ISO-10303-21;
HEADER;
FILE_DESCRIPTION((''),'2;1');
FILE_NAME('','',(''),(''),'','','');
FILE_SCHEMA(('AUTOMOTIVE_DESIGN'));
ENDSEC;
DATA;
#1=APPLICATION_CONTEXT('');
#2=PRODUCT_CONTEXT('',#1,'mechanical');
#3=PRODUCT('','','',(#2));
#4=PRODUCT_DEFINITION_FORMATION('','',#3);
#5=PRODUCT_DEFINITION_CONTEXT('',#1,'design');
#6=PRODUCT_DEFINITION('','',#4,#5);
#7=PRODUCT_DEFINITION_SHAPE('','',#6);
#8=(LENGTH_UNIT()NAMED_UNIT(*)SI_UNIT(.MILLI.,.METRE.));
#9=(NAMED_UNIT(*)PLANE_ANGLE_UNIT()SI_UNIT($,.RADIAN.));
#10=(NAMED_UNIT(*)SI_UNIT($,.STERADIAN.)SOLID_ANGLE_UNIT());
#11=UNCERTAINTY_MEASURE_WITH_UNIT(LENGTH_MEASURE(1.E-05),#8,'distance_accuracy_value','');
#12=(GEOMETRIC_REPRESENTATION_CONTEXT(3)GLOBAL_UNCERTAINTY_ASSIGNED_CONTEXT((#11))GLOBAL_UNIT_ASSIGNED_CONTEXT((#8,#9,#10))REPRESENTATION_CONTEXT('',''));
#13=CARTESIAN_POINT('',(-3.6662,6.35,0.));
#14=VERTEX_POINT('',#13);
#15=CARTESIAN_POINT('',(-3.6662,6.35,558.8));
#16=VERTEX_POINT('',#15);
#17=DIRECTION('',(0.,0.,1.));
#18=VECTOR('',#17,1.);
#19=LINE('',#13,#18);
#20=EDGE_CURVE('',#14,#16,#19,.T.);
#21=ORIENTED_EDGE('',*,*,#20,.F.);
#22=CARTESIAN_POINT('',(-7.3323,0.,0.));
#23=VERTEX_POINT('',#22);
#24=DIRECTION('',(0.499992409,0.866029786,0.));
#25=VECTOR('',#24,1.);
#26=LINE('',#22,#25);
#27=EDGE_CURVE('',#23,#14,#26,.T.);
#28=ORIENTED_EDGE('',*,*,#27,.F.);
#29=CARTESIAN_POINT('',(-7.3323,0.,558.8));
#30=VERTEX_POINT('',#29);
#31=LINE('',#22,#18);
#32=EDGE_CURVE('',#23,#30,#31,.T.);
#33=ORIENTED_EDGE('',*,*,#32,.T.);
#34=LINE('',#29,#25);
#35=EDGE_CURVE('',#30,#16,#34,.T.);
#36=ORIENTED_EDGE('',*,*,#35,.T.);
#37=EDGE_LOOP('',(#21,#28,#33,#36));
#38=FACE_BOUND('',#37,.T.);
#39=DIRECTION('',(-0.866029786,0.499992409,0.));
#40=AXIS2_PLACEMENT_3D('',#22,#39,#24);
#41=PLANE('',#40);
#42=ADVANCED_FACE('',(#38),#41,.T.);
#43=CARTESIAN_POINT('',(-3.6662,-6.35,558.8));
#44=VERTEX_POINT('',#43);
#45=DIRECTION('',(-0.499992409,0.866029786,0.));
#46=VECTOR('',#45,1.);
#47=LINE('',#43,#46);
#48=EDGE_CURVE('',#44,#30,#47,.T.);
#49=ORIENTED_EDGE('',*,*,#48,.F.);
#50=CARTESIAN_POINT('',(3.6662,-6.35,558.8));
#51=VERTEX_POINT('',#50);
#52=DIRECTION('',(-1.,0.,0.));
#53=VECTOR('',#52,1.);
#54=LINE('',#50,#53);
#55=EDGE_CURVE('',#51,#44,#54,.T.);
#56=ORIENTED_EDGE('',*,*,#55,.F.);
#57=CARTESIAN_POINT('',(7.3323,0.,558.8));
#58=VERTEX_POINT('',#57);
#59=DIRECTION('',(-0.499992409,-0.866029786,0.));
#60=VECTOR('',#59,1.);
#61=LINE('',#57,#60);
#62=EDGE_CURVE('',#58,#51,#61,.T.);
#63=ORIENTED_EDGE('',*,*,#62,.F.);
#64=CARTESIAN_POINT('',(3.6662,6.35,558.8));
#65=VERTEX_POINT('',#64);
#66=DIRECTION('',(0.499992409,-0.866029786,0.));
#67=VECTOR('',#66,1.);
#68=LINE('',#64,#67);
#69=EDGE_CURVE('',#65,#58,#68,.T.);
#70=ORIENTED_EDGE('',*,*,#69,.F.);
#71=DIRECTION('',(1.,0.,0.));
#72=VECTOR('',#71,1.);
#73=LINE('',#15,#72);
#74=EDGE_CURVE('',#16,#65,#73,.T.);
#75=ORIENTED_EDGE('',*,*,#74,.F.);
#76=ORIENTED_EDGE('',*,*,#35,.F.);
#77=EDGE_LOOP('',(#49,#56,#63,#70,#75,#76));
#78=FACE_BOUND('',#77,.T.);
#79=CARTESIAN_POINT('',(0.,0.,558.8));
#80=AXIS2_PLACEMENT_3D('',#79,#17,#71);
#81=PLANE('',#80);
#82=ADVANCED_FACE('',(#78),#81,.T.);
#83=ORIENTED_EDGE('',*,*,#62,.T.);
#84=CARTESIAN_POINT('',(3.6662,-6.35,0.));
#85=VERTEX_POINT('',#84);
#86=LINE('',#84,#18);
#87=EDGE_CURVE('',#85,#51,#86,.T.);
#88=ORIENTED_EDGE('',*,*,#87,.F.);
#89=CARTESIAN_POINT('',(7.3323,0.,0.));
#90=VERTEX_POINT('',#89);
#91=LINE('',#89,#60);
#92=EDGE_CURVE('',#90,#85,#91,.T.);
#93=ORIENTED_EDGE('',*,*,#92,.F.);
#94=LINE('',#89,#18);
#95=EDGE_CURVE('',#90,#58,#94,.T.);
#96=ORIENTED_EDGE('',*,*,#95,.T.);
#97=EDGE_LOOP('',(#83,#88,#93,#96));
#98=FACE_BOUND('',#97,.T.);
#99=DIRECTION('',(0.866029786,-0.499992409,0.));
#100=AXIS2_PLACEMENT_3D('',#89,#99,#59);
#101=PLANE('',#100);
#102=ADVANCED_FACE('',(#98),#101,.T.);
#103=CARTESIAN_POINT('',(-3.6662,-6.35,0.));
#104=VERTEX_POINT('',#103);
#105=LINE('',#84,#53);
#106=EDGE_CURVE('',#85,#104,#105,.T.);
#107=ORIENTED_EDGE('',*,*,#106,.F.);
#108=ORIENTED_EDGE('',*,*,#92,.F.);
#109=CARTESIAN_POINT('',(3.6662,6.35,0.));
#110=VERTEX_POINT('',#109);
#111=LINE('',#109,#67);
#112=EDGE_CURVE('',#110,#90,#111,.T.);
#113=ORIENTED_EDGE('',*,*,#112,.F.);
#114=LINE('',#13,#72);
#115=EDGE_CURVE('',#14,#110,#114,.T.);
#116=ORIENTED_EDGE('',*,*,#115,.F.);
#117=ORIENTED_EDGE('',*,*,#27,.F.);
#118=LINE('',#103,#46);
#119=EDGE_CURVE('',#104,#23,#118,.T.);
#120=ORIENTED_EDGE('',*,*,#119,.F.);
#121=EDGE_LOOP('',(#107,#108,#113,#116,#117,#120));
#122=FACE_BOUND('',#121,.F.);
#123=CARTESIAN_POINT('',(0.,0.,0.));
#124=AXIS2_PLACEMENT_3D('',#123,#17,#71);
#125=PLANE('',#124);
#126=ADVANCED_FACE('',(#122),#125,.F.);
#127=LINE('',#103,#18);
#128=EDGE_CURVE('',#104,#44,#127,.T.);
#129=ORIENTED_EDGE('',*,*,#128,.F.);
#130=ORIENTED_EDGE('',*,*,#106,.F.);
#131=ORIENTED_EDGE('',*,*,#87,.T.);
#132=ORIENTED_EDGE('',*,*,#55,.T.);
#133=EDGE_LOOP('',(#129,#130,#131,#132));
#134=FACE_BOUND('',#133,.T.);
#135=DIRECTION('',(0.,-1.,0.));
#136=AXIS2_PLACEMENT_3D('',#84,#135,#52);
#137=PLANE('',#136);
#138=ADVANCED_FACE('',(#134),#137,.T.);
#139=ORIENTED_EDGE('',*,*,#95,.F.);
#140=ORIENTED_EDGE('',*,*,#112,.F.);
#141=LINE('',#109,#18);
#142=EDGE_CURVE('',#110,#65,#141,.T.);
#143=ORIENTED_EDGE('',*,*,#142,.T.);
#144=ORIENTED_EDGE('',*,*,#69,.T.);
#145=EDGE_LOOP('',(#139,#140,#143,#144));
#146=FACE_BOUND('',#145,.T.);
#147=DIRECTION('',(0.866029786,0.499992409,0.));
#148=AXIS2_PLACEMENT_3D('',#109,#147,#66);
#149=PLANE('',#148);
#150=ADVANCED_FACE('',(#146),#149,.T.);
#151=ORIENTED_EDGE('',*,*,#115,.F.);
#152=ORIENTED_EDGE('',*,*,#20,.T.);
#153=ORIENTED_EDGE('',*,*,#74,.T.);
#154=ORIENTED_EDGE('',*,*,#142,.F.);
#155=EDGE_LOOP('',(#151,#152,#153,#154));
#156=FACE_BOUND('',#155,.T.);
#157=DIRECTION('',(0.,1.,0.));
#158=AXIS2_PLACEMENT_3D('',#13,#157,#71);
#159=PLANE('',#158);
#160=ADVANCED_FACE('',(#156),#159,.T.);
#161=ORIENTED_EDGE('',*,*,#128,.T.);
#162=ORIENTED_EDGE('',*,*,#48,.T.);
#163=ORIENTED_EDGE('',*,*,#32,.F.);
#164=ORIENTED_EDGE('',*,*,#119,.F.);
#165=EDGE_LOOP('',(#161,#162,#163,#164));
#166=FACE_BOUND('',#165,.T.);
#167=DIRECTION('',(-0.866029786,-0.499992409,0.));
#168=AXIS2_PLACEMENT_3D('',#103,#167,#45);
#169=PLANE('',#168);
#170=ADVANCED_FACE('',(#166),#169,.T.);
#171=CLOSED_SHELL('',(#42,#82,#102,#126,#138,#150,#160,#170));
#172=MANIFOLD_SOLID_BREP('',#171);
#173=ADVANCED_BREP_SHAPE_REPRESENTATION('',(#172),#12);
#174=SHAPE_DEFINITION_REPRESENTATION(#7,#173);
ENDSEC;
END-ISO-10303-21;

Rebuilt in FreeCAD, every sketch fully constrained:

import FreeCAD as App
import Part
import Sketcher
from FreeCAD import Vector
Q = App.Units.Quantity

doc = App.newDocument("Part")
body = doc.addObject("PartDesign::Body", "Body")

# Sketch on XY plane
sketch1 = body.newObject("Sketcher::SketchObject", "Sketch")
sketch1.AttachmentSupport = (doc.getObject("XY_Plane"), [""])
sketch1.MapMode = "FlatFace"
sketch1.addGeometry([
    Part.LineSegment(Vector(7.3323, 0, 0), Vector(3.6662, 6.35, 0)),  # 0
    Part.LineSegment(Vector(3.6662, 6.35, 0), Vector(-3.6662, 6.35, 0)),  # 1
    Part.LineSegment(Vector(-3.6662, 6.35, 0), Vector(-7.3323, 0, 0)),  # 2
    Part.LineSegment(Vector(-7.3323, 0, 0), Vector(-3.6662, -6.35, 0)),  # 3
    Part.LineSegment(Vector(-3.6662, -6.35, 0), Vector(3.6662, -6.35, 0)),  # 4
    Part.LineSegment(Vector(3.6662, -6.35, 0), Vector(7.3323, 0, 0)),  # 5
], False)
sketch1.addConstraint([
    Sketcher.Constraint("Coincident", 0, 2, 1, 1),
    Sketcher.Constraint("Coincident", 1, 2, 2, 1),
    Sketcher.Constraint("Coincident", 2, 2, 3, 1),
    Sketcher.Constraint("Coincident", 3, 2, 4, 1),
    Sketcher.Constraint("Coincident", 4, 2, 5, 1),
    Sketcher.Constraint("Coincident", 5, 2, 0, 1),
    Sketcher.Constraint("Horizontal", 1),
    Sketcher.Constraint("Horizontal", 4),
    Sketcher.Constraint("Symmetric", 0, 2, 3, 2, -1, 1),
    Sketcher.Constraint("Symmetric", 2, 2, 5, 2, -1, 1),
    Sketcher.Constraint("PointOnObject", 2, 2, -1),
    Sketcher.Constraint("Parallel", 2, 5),
    Sketcher.Constraint("Vertical", 1, 2, 3, 2),
    Sketcher.Constraint("DistanceY", 3, 2, 1, 2, Q("0.5 in")),
    Sketcher.Constraint("Angle", 0, Q("119.9995 deg")),
    Sketcher.Constraint("DistanceX", 2, 2, 0, 2, Q("0.433 in")),
])
pad1 = body.newObject("PartDesign::Pad", "Pad")
pad1.Profile = sketch1
pad1.Length = Q("22 in")

doc.recompute()
